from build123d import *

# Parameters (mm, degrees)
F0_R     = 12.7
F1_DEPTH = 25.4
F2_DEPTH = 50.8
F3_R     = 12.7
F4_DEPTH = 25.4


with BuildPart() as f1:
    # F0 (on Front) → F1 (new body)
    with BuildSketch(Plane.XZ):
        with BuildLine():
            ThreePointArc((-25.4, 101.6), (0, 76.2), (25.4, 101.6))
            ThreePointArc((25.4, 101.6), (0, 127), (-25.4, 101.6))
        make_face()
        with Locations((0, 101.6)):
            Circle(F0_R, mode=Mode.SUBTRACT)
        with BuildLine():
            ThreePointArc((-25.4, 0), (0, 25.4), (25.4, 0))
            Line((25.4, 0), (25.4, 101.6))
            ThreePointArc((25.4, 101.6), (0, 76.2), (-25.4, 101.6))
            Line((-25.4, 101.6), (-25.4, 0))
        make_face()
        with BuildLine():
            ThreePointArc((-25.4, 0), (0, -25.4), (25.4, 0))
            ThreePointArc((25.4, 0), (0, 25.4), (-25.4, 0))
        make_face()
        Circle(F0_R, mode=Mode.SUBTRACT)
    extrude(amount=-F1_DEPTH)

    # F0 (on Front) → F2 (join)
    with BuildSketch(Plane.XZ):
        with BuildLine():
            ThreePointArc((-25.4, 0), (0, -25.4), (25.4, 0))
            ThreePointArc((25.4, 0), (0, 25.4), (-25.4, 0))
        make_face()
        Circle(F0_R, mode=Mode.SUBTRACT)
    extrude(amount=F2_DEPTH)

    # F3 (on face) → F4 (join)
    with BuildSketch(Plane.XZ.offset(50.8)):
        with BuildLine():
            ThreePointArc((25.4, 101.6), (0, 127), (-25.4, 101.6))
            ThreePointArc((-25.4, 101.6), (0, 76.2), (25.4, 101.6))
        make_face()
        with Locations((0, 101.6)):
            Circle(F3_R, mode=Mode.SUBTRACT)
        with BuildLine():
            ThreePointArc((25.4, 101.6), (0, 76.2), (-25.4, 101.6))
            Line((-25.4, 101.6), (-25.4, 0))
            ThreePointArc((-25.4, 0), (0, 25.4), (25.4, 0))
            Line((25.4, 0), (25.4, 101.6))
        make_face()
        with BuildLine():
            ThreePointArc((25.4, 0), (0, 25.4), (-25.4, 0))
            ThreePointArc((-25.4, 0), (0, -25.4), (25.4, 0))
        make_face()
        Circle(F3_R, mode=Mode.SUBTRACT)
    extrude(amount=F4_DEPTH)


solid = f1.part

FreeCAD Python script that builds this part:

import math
import FreeCAD as App
import Part
import Sketcher
from FreeCAD import Vector
Q = App.Units.Quantity

doc = App.newDocument("Part")
body = doc.addObject("PartDesign::Body", "Body")

sketch1 = body.newObject("Sketcher::SketchObject", "Sketch")
sketch1.AttachmentSupport = (doc.getObject("XZ_Plane"), [""])
sketch1.MapMode = "FlatFace"
sketch1.addGeometry(Part.ArcOfCircle(Part.Circle(Vector(0, 102, 0), Vector(0, 0, 1), 25), math.radians(0), math.radians(180)), False)
sketch1.addGeometry(Part.LineSegment(Vector(-25, 102, 0), Vector(-25, 0, 0)), False)
sketch1.addGeometry(Part.ArcOfCircle(Part.Circle(Vector(0, 0, 0), Vector(0, 0, 1), 25), math.radians(180), math.radians(360)), False)
sketch1.addGeometry(Part.LineSegment(Vector(25, 0, 0), Vector(25, 102, 0)), False)
sketch1.addGeometry(Part.Circle(Vector(0, 0, 0), Vector(0, 0, 1), 13), False)
sketch1.addGeometry(Part.Circle(Vector(0, 102, 0), Vector(0, 0, 1), 13), False)
sketch1.addConstraint(Sketcher.Constraint("Tangent", 0, 2, 1, 1))
sketch1.addConstraint(Sketcher.Constraint("Tangent", 1, 2, 2, 1))
sketch1.addConstraint(Sketcher.Constraint("Tangent", 2, 2, 3, 1))
sketch1.addConstraint(Sketcher.Constraint("Tangent", 3, 2, 0, 1))
sketch1.addConstraint(Sketcher.Constraint("Vertical", 1))
sketch1.addConstraint(Sketcher.Constraint("Vertical", 3))
sketch1.addConstraint(Sketcher.Constraint("Coincident", 2, 3, -1, 1))
sketch1.addConstraint(Sketcher.Constraint("Coincident", 4, 3, -1, 1))
sketch1.addConstraint(Sketcher.Constraint("Coincident", 5, 3, 0, 3))
sketch1.addConstraint(Sketcher.Constraint("Equal", 4, 5))
sketch1.addConstraint(Sketcher.Constraint("Diameter", 4, Q("1 in")))
sketch1.addConstraint(Sketcher.Constraint("Radius", 0, Q("1 in")))
sketch1.addConstraint(Sketcher.Constraint("DistanceY", 1, 2, 1, 1, Q("4 in")))
pad1 = body.newObject("PartDesign::Pad", "Pad")
pad1.Profile = sketch1
pad1.Length = Q("1 in")
pad1.Reversed = True

sketch2 = body.newObject("Sketcher::SketchObject", "Sketch001")
sketch2.AttachmentSupport = (doc.getObject("XZ_Plane"), [""])
sketch2.MapMode = "FlatFace"
sketch2.addGeometry(Part.Circle(Vector(0, 0, 0), Vector(0, 0, 1), 25), False)
sketch2.addGeometry(Part.Circle(Vector(0, 0, 0), Vector(0, 0, 1), 13), False)
sketch2.addConstraint(Sketcher.Constraint("Coincident", 0, 3, -1, 1))
sketch2.addConstraint(Sketcher.Constraint("Coincident", 1, 3, -1, 1))
sketch2.addConstraint(Sketcher.Constraint("Diameter", 0, Q("2 in")))
sketch2.addConstraint(Sketcher.Constraint("Diameter", 1, Q("1 in")))
pad2 = body.newObject("PartDesign::Pad", "Pad001")
pad2.Profile = sketch2
pad2.Length = Q("2 in")

sketch3 = body.newObject("Sketcher::SketchObject", "Sketch002")
sketch3.AttachmentSupport = (doc.getObject("XZ_Plane"), [""])
sketch3.MapMode = "FlatFace"
sketch3.AttachmentOffset = App.Placement(Vector(0, 0, 2 * 25.4), App.Rotation())
sketch3.addGeometry(Part.ArcOfCircle(Part.Circle(Vector(0, 102, 0), Vector(0, 0, 1), 25), math.radians(0), math.radians(180)), False)
sketch3.addGeometry(Part.LineSegment(Vector(-25, 102, 0), Vector(-25, 0, 0)), False)
sketch3.addGeometry(Part.ArcOfCircle(Part.Circle(Vector(0, 0, 0), Vector(0, 0, 1), 25), math.radians(180), math.radians(360)), False)
sketch3.addGeometry(Part.LineSegment(Vector(25, 0, 0), Vector(25, 102, 0)), False)
sketch3.addGeometry(Part.Circle(Vector(0, 0, 0), Vector(0, 0, 1), 13), False)
sketch3.addGeometry(Part.Circle(Vector(0, 102, 0), Vector(0, 0, 1), 13), False)
sketch3.addConstraint(Sketcher.Constraint("Tangent", 0, 2, 1, 1))
sketch3.addConstraint(Sketcher.Constraint("Tangent", 1, 2, 2, 1))
sketch3.addConstraint(Sketcher.Constraint("Tangent", 2, 2, 3, 1))
sketch3.addConstraint(Sketcher.Constraint("Tangent", 3, 2, 0, 1))
sketch3.addConstraint(Sketcher.Constraint("Vertical", 1))
sketch3.addConstraint(Sketcher.Constraint("Vertical", 3))
sketch3.addConstraint(Sketcher.Constraint("Coincident", 2, 3, -1, 1))
sketch3.addConstraint(Sketcher.Constraint("Coincident", 4, 3, -1, 1))
sketch3.addConstraint(Sketcher.Constraint("Coincident", 5, 3, 0, 3))
sketch3.addConstraint(Sketcher.Constraint("Equal", 4, 5))
sketch3.addConstraint(Sketcher.Constraint("Diameter", 4, Q("1 in")))
sketch3.addConstraint(Sketcher.Constraint("Radius", 0, Q("1 in")))
sketch3.addConstraint(Sketcher.Constraint("DistanceY", 1, 2, 1, 1, Q("4 in")))
pad3 = body.newObject("PartDesign::Pad", "Pad002")
pad3.Profile = sketch3
pad3.Length = Q("1 in")

doc.recompute()
